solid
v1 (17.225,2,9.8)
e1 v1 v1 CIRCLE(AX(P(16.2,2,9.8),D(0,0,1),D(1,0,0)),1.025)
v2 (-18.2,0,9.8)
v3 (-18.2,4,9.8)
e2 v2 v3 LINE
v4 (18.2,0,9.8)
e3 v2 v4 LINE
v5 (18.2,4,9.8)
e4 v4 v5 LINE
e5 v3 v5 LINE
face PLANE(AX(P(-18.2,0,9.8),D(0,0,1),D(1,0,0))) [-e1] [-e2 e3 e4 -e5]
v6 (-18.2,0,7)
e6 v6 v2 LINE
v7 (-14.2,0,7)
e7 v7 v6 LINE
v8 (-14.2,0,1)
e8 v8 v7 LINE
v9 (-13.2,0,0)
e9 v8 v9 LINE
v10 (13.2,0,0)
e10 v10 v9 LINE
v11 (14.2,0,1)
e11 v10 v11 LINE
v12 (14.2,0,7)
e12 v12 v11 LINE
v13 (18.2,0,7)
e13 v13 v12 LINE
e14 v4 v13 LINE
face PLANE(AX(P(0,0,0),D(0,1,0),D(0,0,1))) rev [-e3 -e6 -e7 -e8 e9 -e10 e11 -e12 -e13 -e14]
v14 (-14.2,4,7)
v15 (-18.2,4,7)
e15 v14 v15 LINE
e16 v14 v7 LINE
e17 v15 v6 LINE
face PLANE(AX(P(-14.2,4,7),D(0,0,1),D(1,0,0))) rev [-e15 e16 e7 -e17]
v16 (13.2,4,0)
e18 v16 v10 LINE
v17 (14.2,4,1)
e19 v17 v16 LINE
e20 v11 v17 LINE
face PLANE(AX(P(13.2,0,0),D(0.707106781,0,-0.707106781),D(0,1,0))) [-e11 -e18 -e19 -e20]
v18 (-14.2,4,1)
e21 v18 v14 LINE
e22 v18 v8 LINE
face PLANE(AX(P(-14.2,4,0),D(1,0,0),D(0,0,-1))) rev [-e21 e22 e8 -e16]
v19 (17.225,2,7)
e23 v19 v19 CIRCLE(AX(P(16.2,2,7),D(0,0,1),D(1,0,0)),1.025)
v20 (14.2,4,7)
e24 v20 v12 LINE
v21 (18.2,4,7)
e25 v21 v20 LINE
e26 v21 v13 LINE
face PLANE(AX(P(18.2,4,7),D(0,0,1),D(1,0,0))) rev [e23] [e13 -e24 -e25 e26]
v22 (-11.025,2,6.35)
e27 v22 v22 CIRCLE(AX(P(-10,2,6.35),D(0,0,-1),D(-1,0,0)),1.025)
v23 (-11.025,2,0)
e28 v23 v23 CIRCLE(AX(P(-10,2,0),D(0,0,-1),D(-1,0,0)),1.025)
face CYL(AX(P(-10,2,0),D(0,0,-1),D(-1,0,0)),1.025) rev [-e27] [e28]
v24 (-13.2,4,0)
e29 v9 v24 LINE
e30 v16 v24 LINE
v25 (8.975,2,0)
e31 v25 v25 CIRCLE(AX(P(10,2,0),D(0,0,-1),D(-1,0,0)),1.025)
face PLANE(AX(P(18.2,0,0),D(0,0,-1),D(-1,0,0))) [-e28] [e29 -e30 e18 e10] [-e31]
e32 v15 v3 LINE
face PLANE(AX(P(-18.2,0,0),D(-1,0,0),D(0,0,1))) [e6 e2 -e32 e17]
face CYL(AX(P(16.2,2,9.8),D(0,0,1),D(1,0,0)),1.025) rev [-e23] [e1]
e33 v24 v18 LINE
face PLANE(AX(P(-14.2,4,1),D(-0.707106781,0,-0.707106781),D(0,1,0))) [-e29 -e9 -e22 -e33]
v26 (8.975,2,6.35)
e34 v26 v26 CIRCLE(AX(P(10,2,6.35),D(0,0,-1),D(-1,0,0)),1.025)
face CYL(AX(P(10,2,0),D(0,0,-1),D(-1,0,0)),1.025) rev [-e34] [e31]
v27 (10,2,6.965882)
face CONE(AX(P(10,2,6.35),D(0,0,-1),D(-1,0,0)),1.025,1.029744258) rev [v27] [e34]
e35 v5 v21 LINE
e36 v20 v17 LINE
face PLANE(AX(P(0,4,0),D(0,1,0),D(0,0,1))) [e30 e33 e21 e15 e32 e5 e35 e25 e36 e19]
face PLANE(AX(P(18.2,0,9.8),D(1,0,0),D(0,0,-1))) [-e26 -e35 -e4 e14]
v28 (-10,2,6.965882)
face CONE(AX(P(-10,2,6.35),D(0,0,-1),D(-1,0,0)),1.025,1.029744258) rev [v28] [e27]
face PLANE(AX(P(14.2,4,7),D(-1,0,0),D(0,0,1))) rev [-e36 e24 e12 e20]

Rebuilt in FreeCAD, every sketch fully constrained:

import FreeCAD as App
import Part
import Sketcher

V = App.Vector
Q = App.Units.Quantity


def edges_at(feature, points):
    """Names of the edges that pass closest to the given points."""
    edges = feature.Shape.Edges
    near = lambda p: min(range(len(edges)), key=lambda i: edges[i].distToShape(Part.Vertex(*p))[0])
    return sorted({f"Edge{near(p) + 1}" for p in points})


def add_polygon(sketch, points):
    """Adds a closed chain of lines whose ends are joined by coincident constraints."""
    first, n = sketch.GeometryCount, len(points)
    for a, b in zip(points, points[1:] + points[:1]):
        sketch.addGeometry(Part.LineSegment(App.Vector(*a, 0), App.Vector(*b, 0)), False)
    for i in range(n):
        sketch.addConstraint(Sketcher.Constraint("Coincident", first + i, 2, first + (i + 1) % n, 1))

doc = App.newDocument("Part")
body = doc.addObject("PartDesign::Body", "Body")

# Sketch on XZ plane
sketch1 = body.newObject("Sketcher::SketchObject", "Sketch")
sketch1.AttachmentSupport = (doc.getObject("XZ_Plane"), [""])
sketch1.MapMode = "FlatFace"
sketch1.AttachmentOffset = App.Placement(V(0, 0, -4), App.Rotation())
add_polygon(sketch1, [(-18.2, 0), (-18.2, 9.8), (18.2, 9.8), (18.2, 0)])  # lines 0-3
sketch1.addConstraint([
    Sketcher.Constraint("Vertical", 0),
    Sketcher.Constraint("Horizontal", 1),
    Sketcher.Constraint("Vertical", 2),
    Sketcher.Constraint("Horizontal", 3),
    Sketcher.Constraint("Symmetric", 2, 2, 3, 2, -1, 1),
    Sketcher.Constraint("DistanceX", 1, 1, 1, 2, Q("36.4 mm")),
    Sketcher.Constraint("DistanceY", 0, 1, 0, 2, Q("9.8 mm")),
])
pad1 = body.newObject("PartDesign::Pad", "Pad")
pad1.Profile = sketch1
pad1.Length = 4

# Sketch on XZ plane
sketch2 = body.newObject("Sketcher::SketchObject", "Sketch001")
sketch2.AttachmentSupport = (doc.getObject("XZ_Plane"), [""])
sketch2.MapMode = "FlatFace"
add_polygon(sketch2, [(-18.2, 7), (-18.2, 0), (-14.2, 0), (-14.2, 7)])  # lines 0-3
sketch2.addConstraint([
    Sketcher.Constraint("Vertical", 0),
    Sketcher.Constraint("Horizontal", 1),
    Sketcher.Constraint("Vertical", 2),
    Sketcher.Constraint("Horizontal", 3),
    Sketcher.Constraint("PointOnObject", 0, 2, -1),
    Sketcher.Constraint("DistanceX", 1, 1, 1, 2, Q("4 mm")),
    Sketcher.Constraint("DistanceY", 0, 2, 0, 1, Q("7 mm")),
    Sketcher.Constraint("DistanceX", 0, 2, -1, 1, Q("18.2 mm")),
])
pocket1 = body.newObject("PartDesign::Pocket", "Pocket")
pocket1.Profile = sketch2
pocket1.Type = "ThroughAll"

# Sketch on XZ plane
sketch3 = body.newObject("Sketcher::SketchObject", "Sketch002")
sketch3.AttachmentSupport = (doc.getObject("XZ_Plane"), [""])
sketch3.MapMode = "FlatFace"
add_polygon(sketch3, [(14.2, 7), (14.2, 0), (18.2, 0), (18.2, 7)])  # lines 0-3
sketch3.addConstraint([
    Sketcher.Constraint("Vertical", 0),
    Sketcher.Constraint("Horizontal", 1),
    Sketcher.Constraint("Vertical", 2),
    Sketcher.Constraint("Horizontal", 3),
    Sketcher.Constraint("PointOnObject", 0, 2, -1),
    Sketcher.Constraint("DistanceX", 1, 1, 1, 2, Q("4 mm")),
    Sketcher.Constraint("DistanceY", 0, 2, 0, 1, Q("7 mm")),
    Sketcher.Constraint("DistanceX", -1, 1, 0, 2, Q("14.2 mm")),
])
pocket2 = body.newObject("PartDesign::Pocket", "Pocket001")
pocket2.Profile = sketch3
pocket2.Type = "ThroughAll"

# Sketch on XY plane
sketch4 = body.newObject("Sketcher::SketchObject", "Sketch003")
sketch4.AttachmentSupport = (doc.getObject("XY_Plane"), [""])
sketch4.MapMode = "FlatFace"
sketch4.addGeometry([
    Part.Circle(V(-10, 2, 0), V(0, 0, 1), 1.025),
    Part.Circle(V(10, 2, 0), V(0, 0, 1), 1.025),
], False)
sketch4.addConstraint([
    Sketcher.Constraint("Equal", 0, 1),
    Sketcher.Constraint("Symmetric", 0, 3, 1, 3, -2),
    Sketcher.Constraint("Diameter", 0, Q("2.05 mm")),
    Sketcher.Constraint("DistanceX", 0, 3, -1, 1, Q("10 mm")),
    Sketcher.Constraint("DistanceY", -1, 1, 0, 3, Q("2 mm")),
])
doc.recompute()
hole = body.newObject("PartDesign::Hole", "Hole")
hole.Profile = sketch4
hole.ThreadType = "None"
hole.Diameter = 2.05
hole.DepthType = "Dimension"
hole.Depth = 6.35
hole.DrillPoint = "Angled"
hole.DrillPointAngle = 118
hole.Reversed = True

# Sketch on XY plane
sketch5 = body.newObject("Sketcher::SketchObject", "Sketch004")
sketch5.AttachmentSupport = (doc.getObject("XY_Plane"), [""])
sketch5.MapMode = "FlatFace"
sketch5.AttachmentOffset = App.Placement(V(0, 0, 9.8), App.Rotation())
sketch5.addGeometry(Part.Circle(V(16.2, 2, 0), V(0, 0, 1), 1.025), False)
sketch5.addConstraint([
    Sketcher.Constraint("Diameter", 0, Q("2.05 mm")),
    Sketcher.Constraint("DistanceY", -1, 1, 0, 3, Q("2 mm")),
    Sketcher.Constraint("DistanceX", -1, 1, 0, 3, Q("16.2 mm")),
])
doc.recompute()
hole2 = body.newObject("PartDesign::Hole", "Hole001")
hole2.Profile = sketch5
hole2.ThreadType = "None"
hole2.Diameter = 2.05
hole2.DepthType = "Dimension"
hole2.Depth = 9.8
hole2.DrillPoint = "Flat"
doc.recompute()

chamfer = body.newObject("PartDesign::Chamfer", "Chamfer")
chamfer.Base = (hole2, edges_at(hole2, [(-14.2, 2, 0), (14.2, 2, 0)]))
chamfer.Size = 1

doc.recompute()
